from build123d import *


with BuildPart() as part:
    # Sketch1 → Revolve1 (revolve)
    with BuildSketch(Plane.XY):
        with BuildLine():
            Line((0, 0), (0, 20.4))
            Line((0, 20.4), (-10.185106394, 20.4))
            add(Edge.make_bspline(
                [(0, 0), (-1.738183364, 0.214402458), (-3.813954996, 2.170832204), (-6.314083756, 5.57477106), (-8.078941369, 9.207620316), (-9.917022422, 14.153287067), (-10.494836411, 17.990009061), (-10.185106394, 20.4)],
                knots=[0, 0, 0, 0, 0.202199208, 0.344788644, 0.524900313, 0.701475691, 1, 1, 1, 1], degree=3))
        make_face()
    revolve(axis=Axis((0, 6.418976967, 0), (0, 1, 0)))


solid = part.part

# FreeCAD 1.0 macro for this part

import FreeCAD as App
import Part
import Sketcher
from FreeCAD import Vector

doc = App.newDocument("Part")
body = doc.addObject("PartDesign::Body", "Body")

sketch1 = body.newObject("Sketcher::SketchObject", "Sketch")
sketch1.AttachmentSupport = (doc.getObject("XY_Plane"), [""])
sketch1.MapMode = "FlatFace"
sketch1.addGeometry(Part.LineSegment(Vector(0, 0, 0), Vector(0, 20.4, 0)), False)
sketch1.addGeometry(Part.LineSegment(Vector(0, 20.4, 0), Vector(-10.185106, 20.4, 0)), False)
sketch1.addGeometry(Part.BSplineCurve([Vector(0, 0, 0), Vector(-1.738183, 0.214402, 0), Vector(-3.813955, 2.170832, 0), Vector(-6.314084, 5.574771, 0), Vector(-8.078941, 9.20762, 0), Vector(-9.917022, 14.153287, 0), Vector(-10.494836, 17.990009, 0), Vector(-10.185106, 20.4, 0)], [4, 1, 1, 1, 1, 4], [0, 0.202199208, 0.344788644, 0.524900313, 0.701475691, 1], False, 3, [1, 1, 1, 1, 1, 1, 1, 1], False), False)
sketch1.addConstraint(Sketcher.Constraint("Block", 2))
sketch1.addConstraint(Sketcher.Constraint("Coincident", 0, 2, 1, 1))
sketch1.addConstraint(Sketcher.Constraint("Coincident", 1, 2, 2, 2))
sketch1.addConstraint(Sketcher.Constraint("Coincident", 2, 1, 0, 1))
sketch1.addConstraint(Sketcher.Constraint("Vertical", 0))
sketch1.addConstraint(Sketcher.Constraint("Horizontal", 1))
revolution = body.newObject("PartDesign::Revolution", "Revolution")
revolution.Profile = sketch1
revolution.ReferenceAxis = (sketch1, ["V_Axis"])
revolution.Angle = 360

doc.recompute()
